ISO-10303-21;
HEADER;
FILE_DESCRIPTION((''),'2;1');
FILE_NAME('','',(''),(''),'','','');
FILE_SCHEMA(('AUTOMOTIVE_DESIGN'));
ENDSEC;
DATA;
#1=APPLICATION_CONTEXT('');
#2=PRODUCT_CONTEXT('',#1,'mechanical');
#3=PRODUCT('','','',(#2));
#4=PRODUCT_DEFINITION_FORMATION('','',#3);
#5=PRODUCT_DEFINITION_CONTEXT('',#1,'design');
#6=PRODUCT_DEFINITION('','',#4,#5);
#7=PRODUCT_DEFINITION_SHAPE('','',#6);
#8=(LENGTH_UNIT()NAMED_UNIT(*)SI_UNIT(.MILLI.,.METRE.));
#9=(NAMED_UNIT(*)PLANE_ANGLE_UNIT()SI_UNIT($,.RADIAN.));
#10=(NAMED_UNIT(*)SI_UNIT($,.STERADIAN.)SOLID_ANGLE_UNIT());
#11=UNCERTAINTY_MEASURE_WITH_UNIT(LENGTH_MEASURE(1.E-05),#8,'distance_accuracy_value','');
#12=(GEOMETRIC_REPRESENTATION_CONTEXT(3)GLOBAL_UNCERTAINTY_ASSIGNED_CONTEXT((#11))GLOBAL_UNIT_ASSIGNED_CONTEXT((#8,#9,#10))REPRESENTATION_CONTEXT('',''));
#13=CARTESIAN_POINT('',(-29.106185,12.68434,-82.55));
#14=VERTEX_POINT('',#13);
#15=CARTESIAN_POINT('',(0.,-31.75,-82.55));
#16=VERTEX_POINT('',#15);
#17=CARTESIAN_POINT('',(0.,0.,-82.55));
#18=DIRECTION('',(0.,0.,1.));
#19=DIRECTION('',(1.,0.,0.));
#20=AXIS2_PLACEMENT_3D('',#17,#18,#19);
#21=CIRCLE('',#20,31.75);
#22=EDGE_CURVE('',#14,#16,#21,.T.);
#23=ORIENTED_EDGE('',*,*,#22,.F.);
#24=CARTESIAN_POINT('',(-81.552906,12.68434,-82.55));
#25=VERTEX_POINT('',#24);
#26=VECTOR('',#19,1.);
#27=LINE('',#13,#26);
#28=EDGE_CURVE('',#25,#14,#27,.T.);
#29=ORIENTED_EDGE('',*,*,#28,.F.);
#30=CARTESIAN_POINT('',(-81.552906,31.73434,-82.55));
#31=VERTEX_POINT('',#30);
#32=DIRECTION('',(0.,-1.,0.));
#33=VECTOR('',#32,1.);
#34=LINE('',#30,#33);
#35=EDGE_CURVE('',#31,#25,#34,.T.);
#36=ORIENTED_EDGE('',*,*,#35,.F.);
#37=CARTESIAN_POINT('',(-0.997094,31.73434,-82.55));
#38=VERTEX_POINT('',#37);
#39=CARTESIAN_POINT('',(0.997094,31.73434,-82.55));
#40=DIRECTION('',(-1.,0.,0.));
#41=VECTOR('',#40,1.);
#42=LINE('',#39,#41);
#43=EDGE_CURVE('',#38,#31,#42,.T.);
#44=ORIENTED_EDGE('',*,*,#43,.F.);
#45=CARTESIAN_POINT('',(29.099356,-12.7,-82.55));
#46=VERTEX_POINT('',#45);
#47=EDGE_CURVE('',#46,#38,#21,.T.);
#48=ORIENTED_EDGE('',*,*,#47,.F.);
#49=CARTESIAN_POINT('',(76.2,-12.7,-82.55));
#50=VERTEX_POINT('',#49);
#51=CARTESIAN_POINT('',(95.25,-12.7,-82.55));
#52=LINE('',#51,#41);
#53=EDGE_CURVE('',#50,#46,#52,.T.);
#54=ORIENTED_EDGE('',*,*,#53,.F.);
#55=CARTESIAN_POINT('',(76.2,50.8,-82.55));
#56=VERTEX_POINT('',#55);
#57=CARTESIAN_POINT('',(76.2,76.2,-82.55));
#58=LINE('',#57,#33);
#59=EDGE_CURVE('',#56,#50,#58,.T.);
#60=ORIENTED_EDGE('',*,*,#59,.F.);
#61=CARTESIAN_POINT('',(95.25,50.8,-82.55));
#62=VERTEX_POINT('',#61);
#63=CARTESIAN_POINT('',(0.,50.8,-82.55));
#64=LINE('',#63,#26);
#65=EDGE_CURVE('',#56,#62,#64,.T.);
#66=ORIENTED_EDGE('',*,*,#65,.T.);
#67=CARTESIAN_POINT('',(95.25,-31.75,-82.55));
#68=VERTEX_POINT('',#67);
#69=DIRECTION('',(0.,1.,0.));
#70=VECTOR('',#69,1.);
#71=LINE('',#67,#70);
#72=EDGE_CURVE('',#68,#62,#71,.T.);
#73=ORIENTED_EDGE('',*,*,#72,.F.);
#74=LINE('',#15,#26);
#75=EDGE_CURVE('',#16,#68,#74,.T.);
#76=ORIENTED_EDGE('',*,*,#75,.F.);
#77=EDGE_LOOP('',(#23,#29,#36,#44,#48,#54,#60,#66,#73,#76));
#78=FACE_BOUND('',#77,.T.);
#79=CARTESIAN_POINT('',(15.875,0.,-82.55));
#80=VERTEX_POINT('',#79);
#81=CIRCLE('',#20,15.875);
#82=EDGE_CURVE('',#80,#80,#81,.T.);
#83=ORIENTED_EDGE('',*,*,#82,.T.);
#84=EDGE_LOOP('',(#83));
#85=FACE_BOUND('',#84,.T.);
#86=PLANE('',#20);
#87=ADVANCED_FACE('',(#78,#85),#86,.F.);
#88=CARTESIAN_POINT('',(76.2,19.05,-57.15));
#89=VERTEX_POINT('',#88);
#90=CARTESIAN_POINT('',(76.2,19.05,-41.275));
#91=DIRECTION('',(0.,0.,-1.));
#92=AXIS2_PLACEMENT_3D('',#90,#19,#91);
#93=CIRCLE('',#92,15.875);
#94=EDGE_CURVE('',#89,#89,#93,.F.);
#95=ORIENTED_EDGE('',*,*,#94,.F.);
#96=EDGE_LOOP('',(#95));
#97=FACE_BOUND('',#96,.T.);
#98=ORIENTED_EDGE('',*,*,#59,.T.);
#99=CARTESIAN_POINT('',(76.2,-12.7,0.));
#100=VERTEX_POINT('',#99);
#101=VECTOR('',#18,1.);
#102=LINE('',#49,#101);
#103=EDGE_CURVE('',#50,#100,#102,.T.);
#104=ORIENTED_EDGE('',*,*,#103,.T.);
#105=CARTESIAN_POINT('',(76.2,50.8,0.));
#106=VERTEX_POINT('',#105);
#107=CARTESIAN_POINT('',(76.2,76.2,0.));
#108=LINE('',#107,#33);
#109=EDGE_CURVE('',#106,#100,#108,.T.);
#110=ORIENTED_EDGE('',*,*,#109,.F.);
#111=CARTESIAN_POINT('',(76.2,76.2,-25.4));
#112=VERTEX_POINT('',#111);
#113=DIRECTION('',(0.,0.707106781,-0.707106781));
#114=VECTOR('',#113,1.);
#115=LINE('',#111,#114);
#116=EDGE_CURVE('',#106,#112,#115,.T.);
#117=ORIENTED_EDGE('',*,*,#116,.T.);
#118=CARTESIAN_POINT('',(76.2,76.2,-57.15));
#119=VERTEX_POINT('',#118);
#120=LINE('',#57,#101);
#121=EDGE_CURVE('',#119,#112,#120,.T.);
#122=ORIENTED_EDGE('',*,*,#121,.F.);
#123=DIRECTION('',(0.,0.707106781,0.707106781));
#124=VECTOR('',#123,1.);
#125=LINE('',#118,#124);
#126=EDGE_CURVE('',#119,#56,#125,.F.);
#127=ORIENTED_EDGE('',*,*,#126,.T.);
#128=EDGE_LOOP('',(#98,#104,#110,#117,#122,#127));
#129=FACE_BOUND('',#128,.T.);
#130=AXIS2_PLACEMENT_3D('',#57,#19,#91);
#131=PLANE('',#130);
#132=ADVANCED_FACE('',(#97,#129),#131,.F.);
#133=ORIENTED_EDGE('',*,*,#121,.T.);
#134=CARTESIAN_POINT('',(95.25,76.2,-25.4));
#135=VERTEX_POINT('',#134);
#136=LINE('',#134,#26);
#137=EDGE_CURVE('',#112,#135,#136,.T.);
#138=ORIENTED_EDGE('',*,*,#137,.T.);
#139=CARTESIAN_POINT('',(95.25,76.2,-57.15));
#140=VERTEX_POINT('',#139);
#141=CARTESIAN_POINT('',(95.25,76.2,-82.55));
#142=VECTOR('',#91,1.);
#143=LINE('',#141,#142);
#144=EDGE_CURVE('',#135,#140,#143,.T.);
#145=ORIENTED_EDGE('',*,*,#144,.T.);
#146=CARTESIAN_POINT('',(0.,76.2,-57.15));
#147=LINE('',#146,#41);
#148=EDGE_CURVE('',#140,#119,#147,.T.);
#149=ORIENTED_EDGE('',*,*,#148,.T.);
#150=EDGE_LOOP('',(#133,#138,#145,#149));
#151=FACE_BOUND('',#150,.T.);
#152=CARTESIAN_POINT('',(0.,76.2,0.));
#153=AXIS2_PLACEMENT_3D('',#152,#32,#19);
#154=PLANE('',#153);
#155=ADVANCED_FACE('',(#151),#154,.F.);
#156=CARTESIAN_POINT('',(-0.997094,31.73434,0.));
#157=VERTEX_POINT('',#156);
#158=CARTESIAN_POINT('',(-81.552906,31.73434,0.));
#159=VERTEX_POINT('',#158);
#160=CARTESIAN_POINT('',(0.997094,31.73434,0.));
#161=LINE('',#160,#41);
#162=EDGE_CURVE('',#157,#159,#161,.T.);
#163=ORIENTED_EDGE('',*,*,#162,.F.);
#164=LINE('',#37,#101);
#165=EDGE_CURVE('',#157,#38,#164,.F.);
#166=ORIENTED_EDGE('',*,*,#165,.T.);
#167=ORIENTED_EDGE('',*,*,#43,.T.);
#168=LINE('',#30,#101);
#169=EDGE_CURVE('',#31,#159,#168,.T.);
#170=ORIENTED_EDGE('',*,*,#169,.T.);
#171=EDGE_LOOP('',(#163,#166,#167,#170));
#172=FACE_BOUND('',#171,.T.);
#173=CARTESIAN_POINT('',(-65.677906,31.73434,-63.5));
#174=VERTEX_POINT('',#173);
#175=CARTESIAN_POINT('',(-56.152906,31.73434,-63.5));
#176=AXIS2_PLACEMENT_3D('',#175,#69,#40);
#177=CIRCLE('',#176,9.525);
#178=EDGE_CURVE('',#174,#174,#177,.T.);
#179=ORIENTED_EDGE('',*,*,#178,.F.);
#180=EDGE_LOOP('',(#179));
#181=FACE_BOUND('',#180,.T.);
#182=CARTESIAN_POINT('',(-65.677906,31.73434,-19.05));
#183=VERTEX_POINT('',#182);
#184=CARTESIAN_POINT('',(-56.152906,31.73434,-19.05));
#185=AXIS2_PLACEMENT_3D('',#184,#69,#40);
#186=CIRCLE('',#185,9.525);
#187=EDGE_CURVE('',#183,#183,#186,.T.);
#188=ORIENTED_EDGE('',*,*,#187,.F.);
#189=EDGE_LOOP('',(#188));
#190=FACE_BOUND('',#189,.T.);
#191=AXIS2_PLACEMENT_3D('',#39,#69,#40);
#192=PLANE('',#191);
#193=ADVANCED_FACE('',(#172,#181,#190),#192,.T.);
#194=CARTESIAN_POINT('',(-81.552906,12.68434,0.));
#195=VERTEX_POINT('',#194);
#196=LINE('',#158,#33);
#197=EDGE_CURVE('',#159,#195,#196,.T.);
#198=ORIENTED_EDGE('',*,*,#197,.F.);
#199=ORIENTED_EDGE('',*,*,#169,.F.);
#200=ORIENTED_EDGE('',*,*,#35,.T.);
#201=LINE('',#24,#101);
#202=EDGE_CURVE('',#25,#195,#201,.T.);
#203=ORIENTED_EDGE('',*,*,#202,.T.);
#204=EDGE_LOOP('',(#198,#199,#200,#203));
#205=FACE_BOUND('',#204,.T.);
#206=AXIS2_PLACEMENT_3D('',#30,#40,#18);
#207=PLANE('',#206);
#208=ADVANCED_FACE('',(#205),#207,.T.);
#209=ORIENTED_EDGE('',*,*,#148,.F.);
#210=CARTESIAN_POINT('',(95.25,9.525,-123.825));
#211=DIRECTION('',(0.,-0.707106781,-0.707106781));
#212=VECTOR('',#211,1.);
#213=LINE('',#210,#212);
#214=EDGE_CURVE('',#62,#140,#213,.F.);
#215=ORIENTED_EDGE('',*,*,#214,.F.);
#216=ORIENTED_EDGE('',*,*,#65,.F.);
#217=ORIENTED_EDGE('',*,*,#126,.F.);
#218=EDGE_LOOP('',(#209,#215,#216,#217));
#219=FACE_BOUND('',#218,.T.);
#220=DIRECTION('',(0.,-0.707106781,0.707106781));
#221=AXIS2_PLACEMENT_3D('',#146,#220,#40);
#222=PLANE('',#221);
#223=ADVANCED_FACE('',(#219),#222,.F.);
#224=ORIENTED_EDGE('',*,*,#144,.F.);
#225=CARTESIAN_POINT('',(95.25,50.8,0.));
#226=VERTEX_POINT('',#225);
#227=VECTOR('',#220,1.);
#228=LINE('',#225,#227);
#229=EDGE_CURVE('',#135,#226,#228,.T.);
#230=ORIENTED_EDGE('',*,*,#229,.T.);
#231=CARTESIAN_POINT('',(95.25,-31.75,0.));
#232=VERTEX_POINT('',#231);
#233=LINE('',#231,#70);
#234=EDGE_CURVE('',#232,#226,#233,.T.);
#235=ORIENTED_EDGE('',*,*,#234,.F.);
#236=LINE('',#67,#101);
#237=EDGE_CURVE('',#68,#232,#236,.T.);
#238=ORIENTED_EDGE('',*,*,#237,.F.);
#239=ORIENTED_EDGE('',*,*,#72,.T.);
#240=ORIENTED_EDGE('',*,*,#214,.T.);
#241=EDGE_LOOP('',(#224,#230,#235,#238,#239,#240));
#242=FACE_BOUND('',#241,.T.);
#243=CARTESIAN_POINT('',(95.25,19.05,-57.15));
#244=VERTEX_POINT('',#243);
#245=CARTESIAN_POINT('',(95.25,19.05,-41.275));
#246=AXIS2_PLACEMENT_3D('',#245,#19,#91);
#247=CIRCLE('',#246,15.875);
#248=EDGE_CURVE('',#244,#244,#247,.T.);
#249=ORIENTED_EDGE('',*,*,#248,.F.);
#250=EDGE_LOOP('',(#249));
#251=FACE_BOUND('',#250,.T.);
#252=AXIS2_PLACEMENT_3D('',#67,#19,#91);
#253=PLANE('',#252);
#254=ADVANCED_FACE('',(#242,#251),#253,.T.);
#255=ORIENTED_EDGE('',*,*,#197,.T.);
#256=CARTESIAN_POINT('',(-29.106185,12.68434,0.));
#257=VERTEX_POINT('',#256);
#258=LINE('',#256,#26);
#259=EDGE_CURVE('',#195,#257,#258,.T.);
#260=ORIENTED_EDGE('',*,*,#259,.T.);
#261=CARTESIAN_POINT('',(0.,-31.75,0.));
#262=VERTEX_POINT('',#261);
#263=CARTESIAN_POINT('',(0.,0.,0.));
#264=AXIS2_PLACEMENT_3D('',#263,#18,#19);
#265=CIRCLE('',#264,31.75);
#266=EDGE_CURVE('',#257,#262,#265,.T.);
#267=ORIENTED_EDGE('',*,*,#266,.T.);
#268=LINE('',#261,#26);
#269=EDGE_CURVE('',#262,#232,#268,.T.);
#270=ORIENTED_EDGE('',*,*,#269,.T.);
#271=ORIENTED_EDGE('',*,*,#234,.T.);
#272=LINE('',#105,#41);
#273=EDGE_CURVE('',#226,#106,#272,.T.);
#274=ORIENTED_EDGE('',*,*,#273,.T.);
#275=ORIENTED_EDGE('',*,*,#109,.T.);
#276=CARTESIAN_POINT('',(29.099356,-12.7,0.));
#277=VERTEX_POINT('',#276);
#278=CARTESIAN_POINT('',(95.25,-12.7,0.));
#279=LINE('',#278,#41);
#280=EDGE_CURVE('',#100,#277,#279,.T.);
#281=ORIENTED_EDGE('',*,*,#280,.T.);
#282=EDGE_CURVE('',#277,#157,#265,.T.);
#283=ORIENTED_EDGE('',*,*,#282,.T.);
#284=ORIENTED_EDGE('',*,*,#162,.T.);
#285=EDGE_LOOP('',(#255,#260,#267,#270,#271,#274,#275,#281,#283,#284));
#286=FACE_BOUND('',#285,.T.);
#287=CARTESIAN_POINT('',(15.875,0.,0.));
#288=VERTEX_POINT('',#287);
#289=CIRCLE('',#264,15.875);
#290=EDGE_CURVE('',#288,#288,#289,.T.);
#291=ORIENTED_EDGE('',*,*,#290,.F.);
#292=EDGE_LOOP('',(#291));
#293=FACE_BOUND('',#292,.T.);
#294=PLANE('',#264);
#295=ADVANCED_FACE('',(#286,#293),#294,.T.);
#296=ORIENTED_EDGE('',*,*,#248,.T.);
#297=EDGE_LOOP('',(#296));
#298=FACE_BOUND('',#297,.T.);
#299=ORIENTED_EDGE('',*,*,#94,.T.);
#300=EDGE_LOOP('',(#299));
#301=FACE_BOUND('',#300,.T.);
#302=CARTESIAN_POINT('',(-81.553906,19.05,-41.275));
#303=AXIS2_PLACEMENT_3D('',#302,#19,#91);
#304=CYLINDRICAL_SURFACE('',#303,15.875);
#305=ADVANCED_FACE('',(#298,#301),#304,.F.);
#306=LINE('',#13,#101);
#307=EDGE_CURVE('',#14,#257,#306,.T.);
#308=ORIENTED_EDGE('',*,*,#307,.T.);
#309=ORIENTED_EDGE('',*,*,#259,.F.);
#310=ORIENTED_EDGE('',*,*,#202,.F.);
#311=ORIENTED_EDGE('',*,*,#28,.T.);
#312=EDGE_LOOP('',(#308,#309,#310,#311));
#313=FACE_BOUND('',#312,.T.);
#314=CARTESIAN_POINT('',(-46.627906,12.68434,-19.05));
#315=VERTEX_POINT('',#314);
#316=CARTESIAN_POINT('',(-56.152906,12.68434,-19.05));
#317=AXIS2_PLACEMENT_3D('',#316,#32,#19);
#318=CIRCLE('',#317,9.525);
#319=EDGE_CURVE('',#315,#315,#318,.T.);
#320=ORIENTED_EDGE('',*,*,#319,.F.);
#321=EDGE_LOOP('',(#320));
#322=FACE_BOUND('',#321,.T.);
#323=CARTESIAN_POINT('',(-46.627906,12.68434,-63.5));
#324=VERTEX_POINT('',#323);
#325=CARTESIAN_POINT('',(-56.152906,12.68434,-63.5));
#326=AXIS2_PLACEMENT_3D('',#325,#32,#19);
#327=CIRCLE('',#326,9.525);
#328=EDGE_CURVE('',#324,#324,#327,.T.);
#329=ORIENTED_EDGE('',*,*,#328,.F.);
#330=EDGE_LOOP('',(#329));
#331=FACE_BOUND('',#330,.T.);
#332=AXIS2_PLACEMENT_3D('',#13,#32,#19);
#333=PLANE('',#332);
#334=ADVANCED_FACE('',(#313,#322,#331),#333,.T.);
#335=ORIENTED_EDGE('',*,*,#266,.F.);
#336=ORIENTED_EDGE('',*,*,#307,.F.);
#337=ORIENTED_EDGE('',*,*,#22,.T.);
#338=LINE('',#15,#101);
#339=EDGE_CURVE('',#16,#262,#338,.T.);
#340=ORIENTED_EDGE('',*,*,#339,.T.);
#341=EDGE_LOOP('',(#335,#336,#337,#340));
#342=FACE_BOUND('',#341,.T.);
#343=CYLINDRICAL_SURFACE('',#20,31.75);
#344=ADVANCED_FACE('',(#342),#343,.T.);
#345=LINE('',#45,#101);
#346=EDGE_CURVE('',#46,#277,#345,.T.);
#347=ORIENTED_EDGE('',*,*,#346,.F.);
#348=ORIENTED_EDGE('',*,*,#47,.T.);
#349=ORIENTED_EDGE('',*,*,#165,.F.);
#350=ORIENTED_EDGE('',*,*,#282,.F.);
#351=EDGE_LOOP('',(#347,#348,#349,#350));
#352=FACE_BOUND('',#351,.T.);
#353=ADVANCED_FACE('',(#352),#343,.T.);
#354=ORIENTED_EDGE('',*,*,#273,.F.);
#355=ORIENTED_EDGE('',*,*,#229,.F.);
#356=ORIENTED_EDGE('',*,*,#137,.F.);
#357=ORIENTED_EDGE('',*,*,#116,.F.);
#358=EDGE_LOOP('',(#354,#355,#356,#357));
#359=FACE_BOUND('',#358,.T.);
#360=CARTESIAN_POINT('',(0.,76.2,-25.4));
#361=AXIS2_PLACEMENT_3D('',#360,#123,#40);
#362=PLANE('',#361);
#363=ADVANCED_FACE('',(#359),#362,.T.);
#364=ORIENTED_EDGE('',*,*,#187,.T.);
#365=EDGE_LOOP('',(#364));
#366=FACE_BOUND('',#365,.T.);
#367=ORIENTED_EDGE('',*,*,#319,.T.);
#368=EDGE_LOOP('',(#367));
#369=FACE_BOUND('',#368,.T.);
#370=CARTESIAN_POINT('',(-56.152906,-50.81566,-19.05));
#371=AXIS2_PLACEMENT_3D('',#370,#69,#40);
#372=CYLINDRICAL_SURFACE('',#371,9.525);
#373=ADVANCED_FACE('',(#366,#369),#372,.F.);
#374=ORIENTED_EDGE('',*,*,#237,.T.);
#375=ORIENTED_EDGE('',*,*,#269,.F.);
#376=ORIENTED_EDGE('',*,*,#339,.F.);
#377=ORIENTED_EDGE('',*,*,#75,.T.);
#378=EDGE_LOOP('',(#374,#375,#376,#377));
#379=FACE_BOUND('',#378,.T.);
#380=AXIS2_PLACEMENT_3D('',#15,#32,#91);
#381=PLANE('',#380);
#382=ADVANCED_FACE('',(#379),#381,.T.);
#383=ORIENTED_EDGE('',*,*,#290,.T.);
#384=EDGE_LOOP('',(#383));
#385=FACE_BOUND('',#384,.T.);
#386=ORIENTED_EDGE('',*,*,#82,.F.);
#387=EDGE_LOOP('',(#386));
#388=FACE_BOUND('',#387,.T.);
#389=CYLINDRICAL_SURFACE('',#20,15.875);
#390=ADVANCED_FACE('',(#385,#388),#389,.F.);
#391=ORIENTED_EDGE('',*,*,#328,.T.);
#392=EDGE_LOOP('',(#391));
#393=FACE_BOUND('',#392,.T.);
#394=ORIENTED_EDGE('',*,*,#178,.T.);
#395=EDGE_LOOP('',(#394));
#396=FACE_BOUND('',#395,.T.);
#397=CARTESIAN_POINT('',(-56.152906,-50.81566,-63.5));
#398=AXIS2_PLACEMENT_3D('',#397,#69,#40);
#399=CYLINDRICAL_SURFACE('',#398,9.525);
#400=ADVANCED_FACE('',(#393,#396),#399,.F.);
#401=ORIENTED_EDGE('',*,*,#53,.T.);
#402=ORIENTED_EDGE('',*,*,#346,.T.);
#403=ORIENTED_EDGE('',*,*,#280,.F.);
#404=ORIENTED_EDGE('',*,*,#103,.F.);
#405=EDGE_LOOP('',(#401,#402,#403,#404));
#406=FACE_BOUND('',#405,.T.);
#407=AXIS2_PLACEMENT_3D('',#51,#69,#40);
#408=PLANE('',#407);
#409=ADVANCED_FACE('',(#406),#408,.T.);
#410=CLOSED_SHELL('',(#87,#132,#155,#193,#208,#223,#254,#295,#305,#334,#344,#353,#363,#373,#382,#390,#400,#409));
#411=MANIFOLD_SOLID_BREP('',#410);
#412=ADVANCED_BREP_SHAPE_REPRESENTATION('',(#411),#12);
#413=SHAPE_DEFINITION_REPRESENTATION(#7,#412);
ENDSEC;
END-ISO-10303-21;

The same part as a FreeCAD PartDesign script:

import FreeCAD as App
import Part
import Sketcher
from FreeCAD import Vector
Q = App.Units.Quantity


def edges_at(feature, points):
    """Names of the edges that pass closest to the given points."""
    edges = feature.Shape.Edges
    near = lambda p: min(range(len(edges)), key=lambda i: edges[i].distToShape(Part.Vertex(*p))[0])
    return sorted({f"Edge{near(p) + 1}" for p in points})


def add_polygon(sketch, points):
    """Adds a closed chain of lines whose ends are joined by coincident constraints."""
    first, n = sketch.GeometryCount, len(points)
    for a, b in zip(points, points[1:] + points[:1]):
        sketch.addGeometry(Part.LineSegment(App.Vector(*a, 0), App.Vector(*b, 0)), False)
    for i in range(n):
        sketch.addConstraint(Sketcher.Constraint("Coincident", first + i, 2, first + (i + 1) % n, 1))

doc = App.newDocument("Part")
body = doc.addObject("PartDesign::Body", "Body")

sketch1 = body.newObject("Sketcher::SketchObject", "Sketch")
sketch1.AttachmentSupport = (doc.getObject("XY_Plane"), [""])
sketch1.MapMode = "FlatFace"
sketch1.addGeometry([
    Part.Circle(Vector(0, 0, 0), Vector(0, 0, 1), 31.75),
    Part.Circle(Vector(0, 0, 0), Vector(0, 0, 1), 15.875),
], False)
sketch1.addConstraint([
    Sketcher.Constraint("Coincident", 0, 3, -1, 1),
    Sketcher.Constraint("Coincident", 1, 3, -1, 1),
    Sketcher.Constraint("Diameter", 0, Q("2.5 in")),
    Sketcher.Constraint("Diameter", 1, Q("1.25 in")),
])
pad1 = body.newObject("PartDesign::Pad", "Pad")
pad1.Profile = sketch1
pad1.Length = Q("3.25 in")
pad1.Reversed = True

sketch2 = body.newObject("Sketcher::SketchObject", "Sketch001")
sketch2.AttachmentSupport = (doc.getObject("XY_Plane"), [""])
sketch2.MapMode = "FlatFace"
add_polygon(sketch2, [(0.997094, 31.73434), (-81.552906, 31.73434), (-81.552906, 12.68434), (-29.106185, 12.68434)])
add_polygon(sketch2, [(0, -31.75), (95.25, -31.75), (95.25, -12.7), (29.099356, -12.7)])
sketch2.addConstraint([
    Sketcher.Constraint("Horizontal", 0),
    Sketcher.Constraint("Vertical", 1),
    Sketcher.Constraint("Horizontal", 2),
    Sketcher.Constraint("Horizontal", 4),
    Sketcher.Constraint("Vertical", 5),
    Sketcher.Constraint("Horizontal", 6),
    Sketcher.Constraint("PointOnObject", 7, 2, -2),
    Sketcher.Constraint("Equal", 1, 5),
    Sketcher.Constraint("DistanceX", 0, 2, 0, 1, Q("3.25 in")),
    Sketcher.Constraint("DistanceX", 4, 1, 4, 2, Q("3.75 in")),
    Sketcher.Constraint("DistanceY", 1, 2, 1, 1, Q("0.75 in")),
    Sketcher.Constraint("DistanceY", 5, 2, -1, 1, Q("0.5 in")),
    Sketcher.Constraint("DistanceX", 2, 1, 2, 2, 52.446721),
    Sketcher.Constraint("DistanceX", 6, 2, 6, 1, 66.150644),
    Sketcher.Constraint("DistanceY", -1, 1, 0, 2, 31.73434),
    Sketcher.Constraint("DistanceX", 2, 2, 6, 2, 58.205541),
])
pad2 = body.newObject("PartDesign::Pad", "Pad001")
pad2.Profile = sketch2
pad2.Length = Q("3.25 in")
pad2.Reversed = True

sketch3 = body.newObject("Sketcher::SketchObject", "Sketch002")
sketch3.AttachmentSupport = (doc.getObject("XZ_Plane"), [""])
sketch3.MapMode = "FlatFace"
sketch3.AttachmentOffset = App.Placement(Vector(0, 0, -31.73434), App.Rotation())
sketch3.addGeometry([
    Part.Circle(Vector(-56.152906, -63.5, 0), Vector(0, 0, 1), 9.525),
    Part.Circle(Vector(-56.152906, -19.05, 0), Vector(0, 0, 1), 9.525),
], False)
sketch3.addConstraint([
    Sketcher.Constraint("Equal", 0, 1),
    Sketcher.Constraint("Vertical", 0, 3, 1, 3),
    Sketcher.Constraint("Diameter", 0, Q("0.75 in")),
    Sketcher.Constraint("DistanceY", 0, 3, -1, 1, Q("2.5 in")),
    Sketcher.Constraint("DistanceY", 1, 3, -1, 1, Q("0.75 in")),
    Sketcher.Constraint("DistanceX", 0, 3, -1, 1, 56.152906),
])
pocket1 = body.newObject("PartDesign::Pocket", "Pocket")
pocket1.Profile = sketch3
pocket1.Length = Q("3.25 in")
pocket1.Reversed = True

sketch4 = body.newObject("Sketcher::SketchObject", "Sketch003")
sketch4.AttachmentSupport = (doc.getObject("XZ_Plane"), [""])
sketch4.MapMode = "FlatFace"
sketch4.AttachmentOffset = App.Placement(Vector(0, 0, 0.5 * 25.4), App.Rotation())
add_polygon(sketch4, [(76.2, -82.55), (76.2, 0), (95.25, 0), (95.25, -82.55)])
sketch4.addConstraint([
    Sketcher.Constraint("Vertical", 0),
    Sketcher.Constraint("Horizontal", 1),
    Sketcher.Constraint("Vertical", 2),
    Sketcher.Constraint("Horizontal", 3),
    Sketcher.Constraint("PointOnObject", 0, 2, -1),
    Sketcher.Constraint("DistanceX", -1, 1, 0, 2, Q("3 in")),
    Sketcher.Constraint("DistanceX", 1, 1, 1, 2, Q("0.75 in")),
    Sketcher.Constraint("DistanceY", 0, 1, 0, 2, Q("3.25 in")),
])
pad3 = body.newObject("PartDesign::Pad", "Pad002")
pad3.Profile = sketch4
pad3.Length = Q("3.5 in")
pad3.Reversed = True
doc.recompute()

chamfer = body.newObject("PartDesign::Chamfer", "Chamfer")
chamfer.Base = (pad3, edges_at(pad3, [(85.725, 76.2, -82.55), (85.725, 76.2, 0)]))
chamfer.Size = Q("1 in")

sketch5 = body.newObject("Sketcher::SketchObject", "Sketch004")
sketch5.AttachmentSupport = (doc.getObject("YZ_Plane"), [""])
sketch5.MapMode = "FlatFace"
sketch5.AttachmentOffset = App.Placement(Vector(0, 0, 3.75 * 25.4), App.Rotation())
sketch5.addGeometry(Part.Circle(Vector(19.05, -41.275, 0), Vector(0, 0, 1), 15.875), False)
sketch5.addConstraint([
    Sketcher.Constraint("Diameter", 0, Q("1.25 in")),
    Sketcher.Constraint("DistanceX", -1, 1, 0, 3, Q("0.75 in")),
    Sketcher.Constraint("DistanceY", 0, 3, -1, 1, Q("1.625 in")),
])
pocket2 = body.newObject("PartDesign::Pocket", "Pocket001")
pocket2.Profile = sketch5
pocket2.Type = "UpToFirst"

doc.recompute()
